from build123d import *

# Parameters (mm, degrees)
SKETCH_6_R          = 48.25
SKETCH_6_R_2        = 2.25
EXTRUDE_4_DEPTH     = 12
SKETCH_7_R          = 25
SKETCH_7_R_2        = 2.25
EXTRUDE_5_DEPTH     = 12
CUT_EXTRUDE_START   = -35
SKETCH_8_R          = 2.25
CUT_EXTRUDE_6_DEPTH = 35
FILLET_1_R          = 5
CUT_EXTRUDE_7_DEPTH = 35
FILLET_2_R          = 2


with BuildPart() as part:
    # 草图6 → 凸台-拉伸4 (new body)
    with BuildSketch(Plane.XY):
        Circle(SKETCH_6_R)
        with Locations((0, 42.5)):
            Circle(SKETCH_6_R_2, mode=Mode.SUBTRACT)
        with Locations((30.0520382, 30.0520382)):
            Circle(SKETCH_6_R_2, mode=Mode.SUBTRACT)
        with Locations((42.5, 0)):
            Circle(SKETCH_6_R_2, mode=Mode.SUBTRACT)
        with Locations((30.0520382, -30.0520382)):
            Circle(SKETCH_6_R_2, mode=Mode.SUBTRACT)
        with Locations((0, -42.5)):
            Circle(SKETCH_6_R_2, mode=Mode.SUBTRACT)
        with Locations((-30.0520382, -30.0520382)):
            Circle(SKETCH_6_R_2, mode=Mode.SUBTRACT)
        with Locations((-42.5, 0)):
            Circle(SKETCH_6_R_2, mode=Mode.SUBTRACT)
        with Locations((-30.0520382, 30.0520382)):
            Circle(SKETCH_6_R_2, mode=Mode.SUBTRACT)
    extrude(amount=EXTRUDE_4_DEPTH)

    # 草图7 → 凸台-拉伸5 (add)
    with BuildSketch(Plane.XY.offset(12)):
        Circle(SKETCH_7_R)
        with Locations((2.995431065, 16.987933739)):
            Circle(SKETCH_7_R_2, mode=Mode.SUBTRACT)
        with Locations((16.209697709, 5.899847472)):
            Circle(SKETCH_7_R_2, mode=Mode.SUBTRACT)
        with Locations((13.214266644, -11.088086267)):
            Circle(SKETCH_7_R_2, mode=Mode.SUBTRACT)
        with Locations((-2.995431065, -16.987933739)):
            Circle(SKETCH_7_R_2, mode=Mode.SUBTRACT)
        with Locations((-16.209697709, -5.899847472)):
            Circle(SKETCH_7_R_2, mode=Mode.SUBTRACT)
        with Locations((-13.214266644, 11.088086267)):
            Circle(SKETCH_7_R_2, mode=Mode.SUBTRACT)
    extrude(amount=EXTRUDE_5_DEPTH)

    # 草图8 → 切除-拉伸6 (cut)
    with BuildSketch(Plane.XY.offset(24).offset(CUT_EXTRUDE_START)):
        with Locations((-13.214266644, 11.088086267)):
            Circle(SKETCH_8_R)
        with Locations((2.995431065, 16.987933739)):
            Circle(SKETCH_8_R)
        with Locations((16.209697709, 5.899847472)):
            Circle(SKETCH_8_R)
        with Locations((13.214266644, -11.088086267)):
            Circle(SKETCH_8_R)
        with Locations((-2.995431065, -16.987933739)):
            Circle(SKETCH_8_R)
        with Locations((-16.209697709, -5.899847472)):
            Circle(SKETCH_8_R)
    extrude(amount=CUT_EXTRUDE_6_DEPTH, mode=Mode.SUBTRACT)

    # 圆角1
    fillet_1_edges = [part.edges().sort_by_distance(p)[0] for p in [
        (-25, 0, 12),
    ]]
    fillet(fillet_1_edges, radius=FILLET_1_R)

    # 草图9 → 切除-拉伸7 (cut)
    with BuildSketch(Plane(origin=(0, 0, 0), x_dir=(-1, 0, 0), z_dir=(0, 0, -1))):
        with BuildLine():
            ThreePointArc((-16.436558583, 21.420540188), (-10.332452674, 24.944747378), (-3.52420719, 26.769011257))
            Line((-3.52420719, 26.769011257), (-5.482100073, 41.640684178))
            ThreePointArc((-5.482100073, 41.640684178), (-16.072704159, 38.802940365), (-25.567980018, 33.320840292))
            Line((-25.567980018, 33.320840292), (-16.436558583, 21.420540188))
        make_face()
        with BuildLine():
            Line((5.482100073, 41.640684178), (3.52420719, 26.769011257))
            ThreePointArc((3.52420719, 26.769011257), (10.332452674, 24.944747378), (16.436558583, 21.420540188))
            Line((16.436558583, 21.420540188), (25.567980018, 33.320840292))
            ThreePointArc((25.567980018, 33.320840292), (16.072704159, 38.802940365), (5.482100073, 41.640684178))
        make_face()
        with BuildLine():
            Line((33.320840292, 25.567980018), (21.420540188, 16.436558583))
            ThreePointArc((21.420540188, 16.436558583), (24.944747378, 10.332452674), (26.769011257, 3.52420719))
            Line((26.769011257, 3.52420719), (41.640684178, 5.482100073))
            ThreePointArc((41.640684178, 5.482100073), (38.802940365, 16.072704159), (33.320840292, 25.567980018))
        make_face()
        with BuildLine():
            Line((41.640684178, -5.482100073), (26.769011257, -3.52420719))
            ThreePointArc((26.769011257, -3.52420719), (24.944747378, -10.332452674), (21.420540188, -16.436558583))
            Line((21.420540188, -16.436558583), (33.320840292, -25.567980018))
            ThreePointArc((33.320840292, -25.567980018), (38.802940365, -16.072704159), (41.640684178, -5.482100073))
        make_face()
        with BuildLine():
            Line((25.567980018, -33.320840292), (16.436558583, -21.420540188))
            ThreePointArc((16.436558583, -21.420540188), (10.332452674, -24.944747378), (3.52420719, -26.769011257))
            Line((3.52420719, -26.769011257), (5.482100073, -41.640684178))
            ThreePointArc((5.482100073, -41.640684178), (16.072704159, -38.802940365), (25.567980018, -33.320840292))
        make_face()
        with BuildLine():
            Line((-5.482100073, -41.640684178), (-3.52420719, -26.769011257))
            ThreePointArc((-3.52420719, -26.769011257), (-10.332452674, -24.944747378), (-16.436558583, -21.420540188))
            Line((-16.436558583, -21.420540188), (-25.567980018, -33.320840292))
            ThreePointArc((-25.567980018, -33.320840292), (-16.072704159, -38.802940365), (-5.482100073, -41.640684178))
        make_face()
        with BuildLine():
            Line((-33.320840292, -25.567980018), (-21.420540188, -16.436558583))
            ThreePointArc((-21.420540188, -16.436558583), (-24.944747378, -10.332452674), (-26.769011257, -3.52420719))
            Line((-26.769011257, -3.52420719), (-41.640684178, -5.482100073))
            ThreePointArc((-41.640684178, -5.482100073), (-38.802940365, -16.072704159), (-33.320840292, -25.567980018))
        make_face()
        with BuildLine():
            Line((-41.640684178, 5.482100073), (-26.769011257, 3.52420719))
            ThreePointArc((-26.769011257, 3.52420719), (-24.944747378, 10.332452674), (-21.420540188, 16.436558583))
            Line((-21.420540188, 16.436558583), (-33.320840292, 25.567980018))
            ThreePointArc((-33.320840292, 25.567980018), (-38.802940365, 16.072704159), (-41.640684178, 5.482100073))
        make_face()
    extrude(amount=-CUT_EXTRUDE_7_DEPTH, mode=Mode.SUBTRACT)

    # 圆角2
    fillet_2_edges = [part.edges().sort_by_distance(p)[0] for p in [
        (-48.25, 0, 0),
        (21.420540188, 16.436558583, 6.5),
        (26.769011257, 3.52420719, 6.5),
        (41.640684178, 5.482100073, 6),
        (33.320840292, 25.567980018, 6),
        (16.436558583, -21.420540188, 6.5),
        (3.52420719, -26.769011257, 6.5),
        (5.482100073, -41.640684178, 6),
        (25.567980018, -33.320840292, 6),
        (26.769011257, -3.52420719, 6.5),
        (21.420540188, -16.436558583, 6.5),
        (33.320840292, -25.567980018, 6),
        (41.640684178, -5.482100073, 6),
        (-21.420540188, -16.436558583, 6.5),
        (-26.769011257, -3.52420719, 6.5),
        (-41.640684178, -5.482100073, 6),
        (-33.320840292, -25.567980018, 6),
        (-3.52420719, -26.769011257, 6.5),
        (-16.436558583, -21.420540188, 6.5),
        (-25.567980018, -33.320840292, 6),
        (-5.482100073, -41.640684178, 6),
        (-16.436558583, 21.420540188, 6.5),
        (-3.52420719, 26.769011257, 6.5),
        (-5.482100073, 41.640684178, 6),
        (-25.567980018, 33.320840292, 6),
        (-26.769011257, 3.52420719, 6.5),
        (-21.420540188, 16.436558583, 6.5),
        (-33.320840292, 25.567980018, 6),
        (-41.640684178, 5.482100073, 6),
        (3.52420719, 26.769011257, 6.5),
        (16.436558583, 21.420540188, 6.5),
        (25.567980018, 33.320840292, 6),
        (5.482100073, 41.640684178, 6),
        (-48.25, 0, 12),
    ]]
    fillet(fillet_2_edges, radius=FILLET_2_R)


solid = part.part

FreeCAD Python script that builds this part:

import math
import FreeCAD as App
import Part
import Sketcher
from FreeCAD import Vector
Q = App.Units.Quantity


def edges_at(feature, points):
    """Names of the edges that pass closest to the given points."""
    edges = feature.Shape.Edges
    near = lambda p: min(range(len(edges)), key=lambda i: edges[i].distToShape(Part.Vertex(*p))[0])
    return sorted({f"Edge{near(p) + 1}" for p in points})

doc = App.newDocument("Part")
body = doc.addObject("PartDesign::Body", "Body")

# Sketch on XY plane
sketch1 = body.newObject("Sketcher::SketchObject", "Sketch")
sketch1.AttachmentSupport = (doc.getObject("XY_Plane"), [""])
sketch1.MapMode = "FlatFace"
sketch1.addGeometry(Part.Circle(Vector(0, 0, 0), Vector(0, 0, 1), 48.2), False)
sketch1.addGeometry(Part.Circle(Vector(-30.1, -30.1, 0), Vector(0, 0, 1), 2.2), False)
sketch1.addGeometry(Part.Circle(Vector(0, -42.5, 0), Vector(0, 0, 1), 2.2), False)
sketch1.addGeometry(Part.Circle(Vector(30.1, -30.1, 0), Vector(0, 0, 1), 2.2), False)
sketch1.addGeometry(Part.Circle(Vector(-42.5, 0, 0), Vector(0, 0, 1), 2.2), False)
sketch1.addGeometry(Part.Circle(Vector(-30.1, 30.1, 0), Vector(0, 0, 1), 2.2), False)
sketch1.addGeometry(Part.Circle(Vector(42.5, 0, 0), Vector(0, 0, 1), 2.2), False)
sketch1.addGeometry(Part.Circle(Vector(0, 42.5, 0), Vector(0, 0, 1), 2.2), False)
sketch1.addGeometry(Part.Circle(Vector(30.1, 30.1, 0), Vector(0, 0, 1), 2.2), False)
sketch1.addConstraint(Sketcher.Constraint("Coincident", 0, 3, -1, 1))
sketch1.addConstraint(Sketcher.Constraint("Equal", 1, 2))
sketch1.addConstraint(Sketcher.Constraint("Equal", 2, 3))
sketch1.addConstraint(Sketcher.Constraint("Equal", 3, 4))
sketch1.addConstraint(Sketcher.Constraint("Equal", 4, 5))
sketch1.addConstraint(Sketcher.Constraint("Equal", 5, 6))
sketch1.addConstraint(Sketcher.Constraint("Equal", 6, 7))
sketch1.addConstraint(Sketcher.Constraint("Equal", 7, 8))
sketch1.addConstraint(Sketcher.Constraint("Symmetric", 3, 3, 5, 3, -1, 1))
sketch1.addConstraint(Sketcher.Constraint("Symmetric", 4, 3, 6, 3, -1, 1))
sketch1.addConstraint(Sketcher.Constraint("Symmetric", 2, 3, 7, 3, -1, 1))
sketch1.addConstraint(Sketcher.Constraint("Symmetric", 1, 3, 8, 3, -1, 1))
sketch1.addConstraint(Sketcher.Constraint("Symmetric", 1, 3, 3, 3, -2))
sketch1.addConstraint(Sketcher.Constraint("PointOnObject", 2, 3, -2))
sketch1.addConstraint(Sketcher.Constraint("PointOnObject", 4, 3, -1))
sketch1.addConstraint(Sketcher.Constraint("Diameter", 0, Q("96.5 mm")))
sketch1.addConstraint(Sketcher.Constraint("Diameter", 1, Q("4.5 mm")))
sketch1.addConstraint(Sketcher.Constraint("DistanceY", 2, 3, -1, 1, Q("42.5 mm")))
sketch1.addConstraint(Sketcher.Constraint("DistanceX", 4, 3, -1, 1, Q("42.5 mm")))
sketch1.addConstraint(Sketcher.Constraint("DistanceX", 1, 3, -1, 1, Q("30.052038 mm")))
sketch1.addConstraint(Sketcher.Constraint("DistanceY", 1, 3, -1, 1, Q("30.052038 mm")))
pad1 = body.newObject("PartDesign::Pad", "Pad")
pad1.Profile = sketch1
pad1.Length = 12

# Sketch on XY plane
sketch2 = body.newObject("Sketcher::SketchObject", "Sketch001")
sketch2.AttachmentSupport = (doc.getObject("XY_Plane"), [""])
sketch2.MapMode = "FlatFace"
sketch2.AttachmentOffset = App.Placement(Vector(0, 0, 12), App.Rotation())
sketch2.addGeometry(Part.Circle(Vector(0, 0, 0), Vector(0, 0, 1), 25), False)
sketch2.addGeometry(Part.Circle(Vector(-3, -17, 0), Vector(0, 0, 1), 2.2), False)
sketch2.addGeometry(Part.Circle(Vector(-16.2, -5.9, 0), Vector(0, 0, 1), 2.2), False)
sketch2.addGeometry(Part.Circle(Vector(13.2, -11.1, 0), Vector(0, 0, 1), 2.2), False)
sketch2.addGeometry(Part.Circle(Vector(-13.2, 11.1, 0), Vector(0, 0, 1), 2.2), False)
sketch2.addGeometry(Part.Circle(Vector(16.2, 5.9, 0), Vector(0, 0, 1), 2.2), False)
sketch2.addGeometry(Part.Circle(Vector(3, 17, 0), Vector(0, 0, 1), 2.2), False)
sketch2.addConstraint(Sketcher.Constraint("Coincident", 0, 3, -1, 1))
sketch2.addConstraint(Sketcher.Constraint("Equal", 1, 2))
sketch2.addConstraint(Sketcher.Constraint("Equal", 2, 3))
sketch2.addConstraint(Sketcher.Constraint("Equal", 3, 4))
sketch2.addConstraint(Sketcher.Constraint("Equal", 4, 5))
sketch2.addConstraint(Sketcher.Constraint("Equal", 5, 6))
sketch2.addConstraint(Sketcher.Constraint("Symmetric", 3, 3, 4, 3, -1, 1))
sketch2.addConstraint(Sketcher.Constraint("Symmetric", 2, 3, 5, 3, -1, 1))
sketch2.addConstraint(Sketcher.Constraint("Symmetric", 1, 3, 6, 3, -1, 1))
sketch2.addConstraint(Sketcher.Constraint("Diameter", 0, Q("50 mm")))
sketch2.addConstraint(Sketcher.Constraint("Diameter", 1, Q("4.5 mm")))
sketch2.addConstraint(Sketcher.Constraint("DistanceX", 1, 3, -1, 1, Q("2.995431 mm")))
sketch2.addConstraint(Sketcher.Constraint("DistanceY", 3, 3, 2, 3, Q("5.188239 mm")))
sketch2.addConstraint(Sketcher.Constraint("DistanceX", 2, 3, 4, 3, Q("2.995431 mm")))
sketch2.addConstraint(Sketcher.Constraint("DistanceY", 1, 3, 4, 3, Q("28.07602 mm")))
sketch2.addConstraint(Sketcher.Constraint("DistanceX", 1, 3, 5, 3, Q("19.205129 mm")))
sketch2.addConstraint(Sketcher.Constraint("DistanceY", 1, 3, -1, 1, Q("16.987934 mm")))
pad2 = body.newObject("PartDesign::Pad", "Pad001")
pad2.Profile = sketch2
pad2.Length = 12

# Sketch on XY plane
sketch3 = body.newObject("Sketcher::SketchObject", "Sketch002")
sketch3.AttachmentSupport = (doc.getObject("XY_Plane"), [""])
sketch3.MapMode = "FlatFace"
sketch3.AttachmentOffset = App.Placement(Vector(0, 0, -11), App.Rotation())
sketch3.addGeometry(Part.Circle(Vector(-13.2, 11.1, 0), Vector(0, 0, 1), 2.2), False)
sketch3.addGeometry(Part.Circle(Vector(3, 17, 0), Vector(0, 0, 1), 2.2), False)
sketch3.addGeometry(Part.Circle(Vector(16.2, 5.9, 0), Vector(0, 0, 1), 2.2), False)
sketch3.addGeometry(Part.Circle(Vector(13.2, -11.1, 0), Vector(0, 0, 1), 2.2), False)
sketch3.addGeometry(Part.Circle(Vector(-3, -17, 0), Vector(0, 0, 1), 2.2), False)
sketch3.addGeometry(Part.Circle(Vector(-16.2, -5.9, 0), Vector(0, 0, 1), 2.2), False)
sketch3.addConstraint(Sketcher.Constraint("Equal", 0, 1))
sketch3.addConstraint(Sketcher.Constraint("Equal", 1, 2))
sketch3.addConstraint(Sketcher.Constraint("Equal", 2, 3))
sketch3.addConstraint(Sketcher.Constraint("Equal", 3, 4))
sketch3.addConstraint(Sketcher.Constraint("Equal", 4, 5))
sketch3.addConstraint(Sketcher.Constraint("Symmetric", 0, 3, 3, 3, -1, 1))
sketch3.addConstraint(Sketcher.Constraint("Symmetric", 1, 3, 4, 3, -1, 1))
sketch3.addConstraint(Sketcher.Constraint("Symmetric", 2, 3, 5, 3, -1, 1))
sketch3.addConstraint(Sketcher.Constraint("Diameter", 0, Q("4.5 mm")))
sketch3.addConstraint(Sketcher.Constraint("DistanceX", -1, 1, 1, 3, Q("2.995431 mm")))
sketch3.addConstraint(Sketcher.Constraint("DistanceY", 2, 3, 0, 3, Q("5.188239 mm")))
sketch3.addConstraint(Sketcher.Constraint("DistanceX", 3, 3, 2, 3, Q("2.995431 mm")))
sketch3.addConstraint(Sketcher.Constraint("DistanceY", 3, 3, 1, 3, Q("28.07602 mm")))
sketch3.addConstraint(Sketcher.Constraint("DistanceX", 4, 3, 2, 3, Q("19.205129 mm")))
sketch3.addConstraint(Sketcher.Constraint("DistanceY", -1, 1, 0, 3, Q("11.088086 mm")))
pocket1 = body.newObject("PartDesign::Pocket", "Pocket")
pocket1.Profile = sketch3
pocket1.Length = 35
pocket1.Reversed = True
doc.recompute()

fillet = body.newObject("PartDesign::Fillet", "Fillet")
fillet.Base = (pocket1, edges_at(pocket1, [(-25, 0, 12)]))
fillet.Radius = 5

# Sketch on XY plane
sketch4 = body.newObject("Sketcher::SketchObject", "Sketch003")
sketch4.AttachmentSupport = (doc.getObject("XY_Plane"), [""])
sketch4.MapMode = "FlatFace"
sketch4.addGeometry(Part.ArcOfCircle(Part.Circle(Vector(0, 0, 0), Vector(0, 0, 1), 27), math.radians(52), math.radians(83)), False)
sketch4.addGeometry(Part.LineSegment(Vector(4, 27, 0), Vector(5, 42, 0)), False)
sketch4.addGeometry(Part.ArcOfCircle(Part.Circle(Vector(0, 0, 0), Vector(0, 0, 1), 42), math.radians(53), math.radians(82)), False)
sketch4.addGeometry(Part.LineSegment(Vector(26, 33, 0), Vector(16, 21, 0)), False)
sketch4.addGeometry(Part.LineSegment(Vector(-5, 42, 0), Vector(-4, 27, 0)), False)
sketch4.addGeometry(Part.ArcOfCircle(Part.Circle(Vector(0, 0, 0), Vector(0, 0, 1), 27), math.radians(97), math.radians(128)), False)
sketch4.addGeometry(Part.LineSegment(Vector(-16, 21, 0), Vector(-26, 33, 0)), False)
sketch4.addGeometry(Part.ArcOfCircle(Part.Circle(Vector(0, 0, 0), Vector(0, 0, 1), 42), math.radians(98), math.radians(127)), False)
sketch4.addGeometry(Part.LineSegment(Vector(-33, 26, 0), Vector(-21, 16, 0)), False)
sketch4.addGeometry(Part.ArcOfCircle(Part.Circle(Vector(0, 0, 0), Vector(0, 0, 1), 27), math.radians(142), math.radians(173)), False)
sketch4.addGeometry(Part.LineSegment(Vector(-27, 4, 0), Vector(-42, 5, 0)), False)
sketch4.addGeometry(Part.ArcOfCircle(Part.Circle(Vector(0, 0, 0), Vector(0, 0, 1), 42), math.radians(143), math.radians(172)), False)
sketch4.addGeometry(Part.LineSegment(Vector(-42, -5, 0), Vector(-27, -4, 0)), False)
sketch4.addGeometry(Part.ArcOfCircle(Part.Circle(Vector(0, 0, 0), Vector(0, 0, 1), 27), math.radians(-173), math.radians(-142)), False)
sketch4.addGeometry(Part.LineSegment(Vector(-21, -16, 0), Vector(-33, -26, 0)), False)
sketch4.addGeometry(Part.ArcOfCircle(Part.Circle(Vector(0, 0, 0), Vector(0, 0, 1), 42), math.radians(-172), math.radians(-143)), False)
sketch4.addGeometry(Part.LineSegment(Vector(-26, -33, 0), Vector(-16, -21, 0)), False)
sketch4.addGeometry(Part.ArcOfCircle(Part.Circle(Vector(0, 0, 0), Vector(0, 0, 1), 27), math.radians(-128), math.radians(-97)), False)
sketch4.addGeometry(Part.LineSegment(Vector(-4, -27, 0), Vector(-5, -42, 0)), False)
sketch4.addGeometry(Part.ArcOfCircle(Part.Circle(Vector(0, 0, 0), Vector(0, 0, 1), 42), math.radians(-127), math.radians(-98)), False)
sketch4.addGeometry(Part.LineSegment(Vector(5, -42, 0), Vector(4, -27, 0)), False)
sketch4.addGeometry(Part.ArcOfCircle(Part.Circle(Vector(0, 0, 0), Vector(0, 0, 1), 27), math.radians(-83), math.radians(-52)), False)
sketch4.addGeometry(Part.LineSegment(Vector(16, -21, 0), Vector(26, -33, 0)), False)
sketch4.addGeometry(Part.ArcOfCircle(Part.Circle(Vector(0, 0, 0), Vector(0, 0, 1), 42), math.radians(-82), math.radians(-53)), False)
sketch4.addGeometry(Part.LineSegment(Vector(33, -26, 0), Vector(21, -16, 0)), False)
sketch4.addGeometry(Part.ArcOfCircle(Part.Circle(Vector(0, 0, 0), Vector(0, 0, 1), 27), math.radians(-38), math.radians(-7)), False)
sketch4.addGeometry(Part.LineSegment(Vector(27, -4, 0), Vector(42, -5, 0)), False)
sketch4.addGeometry(Part.ArcOfCircle(Part.Circle(Vector(0, 0, 0), Vector(0, 0, 1), 42), math.radians(-37), math.radians(-8)), False)
sketch4.addGeometry(Part.LineSegment(Vector(42, 5, 0), Vector(27, 4, 0)), False)
sketch4.addGeometry(Part.ArcOfCircle(Part.Circle(Vector(0, 0, 0), Vector(0, 0, 1), 27), math.radians(7), math.radians(38)), False)
sketch4.addGeometry(Part.LineSegment(Vector(21, 16, 0), Vector(33, 26, 0)), False)
sketch4.addGeometry(Part.ArcOfCircle(Part.Circle(Vector(0, 0, 0), Vector(0, 0, 1), 42), math.radians(8), math.radians(37)), False)
sketch4.addConstraint(Sketcher.Constraint("Coincident", 0, 2, 1, 1))
sketch4.addConstraint(Sketcher.Constraint("Coincident", 1, 2, 2, 2))
sketch4.addConstraint(Sketcher.Constraint("Coincident", 2, 1, 3, 1))
sketch4.addConstraint(Sketcher.Constraint("Coincident", 3, 2, 0, 1))
sketch4.addConstraint(Sketcher.Constraint("Coincident", 4, 2, 5, 1))
sketch4.addConstraint(Sketcher.Constraint("Coincident", 5, 2, 6, 1))
sketch4.addConstraint(Sketcher.Constraint("Coincident", 6, 2, 7, 2))
sketch4.addConstraint(Sketcher.Constraint("Coincident", 7, 1, 4, 1))
sketch4.addConstraint(Sketcher.Constraint("Coincident", 8, 2, 9, 1))
sketch4.addConstraint(Sketcher.Constraint("Coincident", 9, 2, 10, 1))
sketch4.addConstraint(Sketcher.Constraint("Coincident", 10, 2, 11, 2))
sketch4.addConstraint(Sketcher.Constraint("Coincident", 11, 1, 8, 1))
sketch4.addConstraint(Sketcher.Constraint("Coincident", 12, 2, 13, 1))
sketch4.addConstraint(Sketcher.Constraint("Coincident", 13, 2, 14, 1))
sketch4.addConstraint(Sketcher.Constraint("Coincident", 14, 2, 15, 2))
sketch4.addConstraint(Sketcher.Constraint("Coincident", 15, 1, 12, 1))
sketch4.addConstraint(Sketcher.Constraint("Coincident", 16, 2, 17, 1))
sketch4.addConstraint(Sketcher.Constraint("Coincident", 17, 2, 18, 1))
sketch4.addConstraint(Sketcher.Constraint("Coincident", 18, 2, 19, 2))
sketch4.addConstraint(Sketcher.Constraint("Coincident", 19, 1, 16, 1))
sketch4.addConstraint(Sketcher.Constraint("Coincident", 20, 2, 21, 1))
sketch4.addConstraint(Sketcher.Constraint("Coincident", 21, 2, 22, 1))
sketch4.addConstraint(Sketcher.Constraint("Coincident", 22, 2, 23, 2))
sketch4.addConstraint(Sketcher.Constraint("Coincident", 23, 1, 20, 1))
sketch4.addConstraint(Sketcher.Constraint("Coincident", 24, 2, 25, 1))
sketch4.addConstraint(Sketcher.Constraint("Coincident", 25, 2, 26, 1))
sketch4.addConstraint(Sketcher.Constraint("Coincident", 26, 2, 27, 2))
sketch4.addConstraint(Sketcher.Constraint("Coincident", 27, 1, 24, 1))
sketch4.addConstraint(Sketcher.Constraint("Coincident", 28, 2, 29, 1))
sketch4.addConstraint(Sketcher.Constraint("Coincident", 29, 2, 30, 1))
sketch4.addConstraint(Sketcher.Constraint("Coincident", 30, 2, 31, 2))
sketch4.addConstraint(Sketcher.Constraint("Coincident", 31, 1, 28, 1))
sketch4.addConstraint(Sketcher.Constraint("Coincident", 0, 3, -1, 1))
sketch4.addConstraint(Sketcher.Constraint("Coincident", 2, 3, -1, 1))
sketch4.addConstraint(Sketcher.Constraint("Coincident", 5, 3, -1, 1))
sketch4.addConstraint(Sketcher.Constraint("Coincident", 7, 3, -1, 1))
sketch4.addConstraint(Sketcher.Constraint("Coincident", 9, 3, -1, 1))
sketch4.addConstraint(Sketcher.Constraint("Coincident", 11, 3, -1, 1))
sketch4.addConstraint(Sketcher.Constraint("Coincident", 13, 3, -1, 1))
sketch4.addConstraint(Sketcher.Constraint("Coincident", 15, 3, -1, 1))
sketch4.addConstraint(Sketcher.Constraint("Coincident", 17, 3, -1, 1))
sketch4.addConstraint(Sketcher.Constraint("Coincident", 19, 3, -1, 1))
sketch4.addConstraint(Sketcher.Constraint("Coincident", 21, 3, -1, 1))
sketch4.addConstraint(Sketcher.Constraint("Coincident", 23, 3, -1, 1))
sketch4.addConstraint(Sketcher.Constraint("Coincident", 25, 3, -1, 1))
sketch4.addConstraint(Sketcher.Constraint("Coincident", 27, 3, -1, 1))
sketch4.addConstraint(Sketcher.Constraint("Coincident", 29, 3, -1, 1))
sketch4.addConstraint(Sketcher.Constraint("Coincident", 31, 3, -1, 1))
sketch4.addConstraint(Sketcher.Constraint("Equal", 0, 5))
sketch4.addConstraint(Sketcher.Constraint("Equal", 2, 7))
sketch4.addConstraint(Sketcher.Constraint("Equal", 5, 9))
sketch4.addConstraint(Sketcher.Constraint("Equal", 7, 11))
sketch4.addConstraint(Sketcher.Constraint("Equal", 9, 13))
sketch4.addConstraint(Sketcher.Constraint("Equal", 11, 15))
sketch4.addConstraint(Sketcher.Constraint("Equal", 13, 17))
sketch4.addConstraint(Sketcher.Constraint("Equal", 15, 19))
sketch4.addConstraint(Sketcher.Constraint("Equal", 17, 21))
sketch4.addConstraint(Sketcher.Constraint("Equal", 19, 23))
sketch4.addConstraint(Sketcher.Constraint("Equal", 21, 25))
sketch4.addConstraint(Sketcher.Constraint("Equal", 23, 27))
sketch4.addConstraint(Sketcher.Constraint("Equal", 25, 29))
sketch4.addConstraint(Sketcher.Constraint("Equal", 27, 31))
sketch4.addConstraint(Sketcher.Constraint("Perpendicular", 3, 8))
sketch4.addConstraint(Sketcher.Constraint("Perpendicular", 1, 10))
sketch4.addConstraint(Sketcher.Constraint("Perpendicular", 4, 12))
sketch4.addConstraint(Sketcher.Constraint("Perpendicular", 6, 14))
sketch4.addConstraint(Sketcher.Constraint("Perpendicular", 8, 16))
sketch4.addConstraint(Sketcher.Constraint("Perpendicular", 10, 18))
sketch4.addConstraint(Sketcher.Constraint("Perpendicular", 12, 20))
sketch4.addConstraint(Sketcher.Constraint("Perpendicular", 14, 22))
sketch4.addConstraint(Sketcher.Constraint("Perpendicular", 16, 24))
sketch4.addConstraint(Sketcher.Constraint("Perpendicular", 18, 26))
sketch4.addConstraint(Sketcher.Constraint("Perpendicular", 20, 28))
sketch4.addConstraint(Sketcher.Constraint("Perpendicular", 22, 30))
sketch4.addConstraint(Sketcher.Constraint("Horizontal", 0, 2, 4, 2))
sketch4.addConstraint(Sketcher.Constraint("Horizontal", 3, 2, 5, 2))
sketch4.addConstraint(Sketcher.Constraint("Horizontal", 2, 1, 6, 2))
sketch4.addConstraint(Sketcher.Constraint("Horizontal", 1, 2, 7, 1))
sketch4.addConstraint(Sketcher.Constraint("Horizontal", 17, 2, 20, 2))
sketch4.addConstraint(Sketcher.Constraint("Horizontal", 16, 2, 21, 2))
sketch4.addConstraint(Sketcher.Constraint("Horizontal", 13, 2, 24, 2))
sketch4.addConstraint(Sketcher.Constraint("Horizontal", 12, 2, 25, 2))
sketch4.addConstraint(Sketcher.Constraint("Horizontal", 9, 2, 28, 2))
sketch4.addConstraint(Sketcher.Constraint("Horizontal", 8, 2, 29, 2))
sketch4.addConstraint(Sketcher.Constraint("Vertical", 9, 2, 12, 2))
sketch4.addConstraint(Sketcher.Constraint("Vertical", 8, 2, 13, 2))
sketch4.addConstraint(Sketcher.Constraint("Vertical", 5, 2, 16, 2))
sketch4.addConstraint(Sketcher.Constraint("Vertical", 4, 2, 17, 2))
sketch4.addConstraint(Sketcher.Constraint("Radius", 0, Q("27 mm")))
sketch4.addConstraint(Sketcher.Constraint("Radius", 2, Q("42 mm")))
sketch4.addConstraint(Sketcher.Constraint("Angle", 1, Q("82.5 deg")))
sketch4.addConstraint(Sketcher.Constraint("Angle", 3, Q("-127.5 deg")))
sketch4.addConstraint(Sketcher.Constraint("DistanceX", -1, 1, 1, 2, Q("5.4821 mm")))
sketch4.addConstraint(Sketcher.Constraint("DistanceY", -1, 1, 10, 2, Q("5.4821 mm")))
sketch4.addConstraint(Sketcher.Constraint("DistanceX", -1, 1, 2, 1, Q("25.56798 mm")))
sketch4.addConstraint(Sketcher.Constraint("DistanceX", 8, 2, -1, 1, Q("21.42054 mm")))
pocket2 = body.newObject("PartDesign::Pocket", "Pocket001")
pocket2.Profile = sketch4
pocket2.Length = 35
pocket2.Reversed = True
doc.recompute()

fillet2 = body.newObject("PartDesign::Fillet", "Fillet001")
fillet2.Base = (pocket2, edges_at(pocket2, [
    (-48.25, 0, 0),
    (21.421, 16.437, 6.5),
    (26.769, 3.524, 6.5),
    (41.641, 5.482, 6),
    (33.321, 25.568, 6),
    (16.437, -21.421, 6.5),
    (3.524, -26.769, 6.5),
    (5.482, -41.641, 6),
    (25.568, -33.321, 6),
    (26.769, -3.524, 6.5),
    (21.421, -16.437, 6.5),
    (33.321, -25.568, 6),
    (41.641, -5.482, 6),
    (-21.421, -16.437, 6.5),
    (-26.769, -3.524, 6.5),
    (-41.641, -5.482, 6),
    (-33.321, -25.568, 6),
    (-3.524, -26.769, 6.5),
    (-16.437, -21.421, 6.5),
    (-25.568, -33.321, 6),
    (-5.482, -41.641, 6),
    (-16.437, 21.421, 6.5),
    (-3.524, 26.769, 6.5),
    (-5.482, 41.641, 6),
    (-25.568, 33.321, 6),
    (-26.769, 3.524, 6.5),
    (-21.421, 16.437, 6.5),
    (-33.321, 25.568, 6),
    (-41.641, 5.482, 6),
    (3.524, 26.769, 6.5),
    (16.437, 21.421, 6.5),
    (25.568, 33.321, 6),
    (5.482, 41.641, 6),
    (-48.25, 0, 12),
]))
fillet2.Radius = 2

doc.recompute()
